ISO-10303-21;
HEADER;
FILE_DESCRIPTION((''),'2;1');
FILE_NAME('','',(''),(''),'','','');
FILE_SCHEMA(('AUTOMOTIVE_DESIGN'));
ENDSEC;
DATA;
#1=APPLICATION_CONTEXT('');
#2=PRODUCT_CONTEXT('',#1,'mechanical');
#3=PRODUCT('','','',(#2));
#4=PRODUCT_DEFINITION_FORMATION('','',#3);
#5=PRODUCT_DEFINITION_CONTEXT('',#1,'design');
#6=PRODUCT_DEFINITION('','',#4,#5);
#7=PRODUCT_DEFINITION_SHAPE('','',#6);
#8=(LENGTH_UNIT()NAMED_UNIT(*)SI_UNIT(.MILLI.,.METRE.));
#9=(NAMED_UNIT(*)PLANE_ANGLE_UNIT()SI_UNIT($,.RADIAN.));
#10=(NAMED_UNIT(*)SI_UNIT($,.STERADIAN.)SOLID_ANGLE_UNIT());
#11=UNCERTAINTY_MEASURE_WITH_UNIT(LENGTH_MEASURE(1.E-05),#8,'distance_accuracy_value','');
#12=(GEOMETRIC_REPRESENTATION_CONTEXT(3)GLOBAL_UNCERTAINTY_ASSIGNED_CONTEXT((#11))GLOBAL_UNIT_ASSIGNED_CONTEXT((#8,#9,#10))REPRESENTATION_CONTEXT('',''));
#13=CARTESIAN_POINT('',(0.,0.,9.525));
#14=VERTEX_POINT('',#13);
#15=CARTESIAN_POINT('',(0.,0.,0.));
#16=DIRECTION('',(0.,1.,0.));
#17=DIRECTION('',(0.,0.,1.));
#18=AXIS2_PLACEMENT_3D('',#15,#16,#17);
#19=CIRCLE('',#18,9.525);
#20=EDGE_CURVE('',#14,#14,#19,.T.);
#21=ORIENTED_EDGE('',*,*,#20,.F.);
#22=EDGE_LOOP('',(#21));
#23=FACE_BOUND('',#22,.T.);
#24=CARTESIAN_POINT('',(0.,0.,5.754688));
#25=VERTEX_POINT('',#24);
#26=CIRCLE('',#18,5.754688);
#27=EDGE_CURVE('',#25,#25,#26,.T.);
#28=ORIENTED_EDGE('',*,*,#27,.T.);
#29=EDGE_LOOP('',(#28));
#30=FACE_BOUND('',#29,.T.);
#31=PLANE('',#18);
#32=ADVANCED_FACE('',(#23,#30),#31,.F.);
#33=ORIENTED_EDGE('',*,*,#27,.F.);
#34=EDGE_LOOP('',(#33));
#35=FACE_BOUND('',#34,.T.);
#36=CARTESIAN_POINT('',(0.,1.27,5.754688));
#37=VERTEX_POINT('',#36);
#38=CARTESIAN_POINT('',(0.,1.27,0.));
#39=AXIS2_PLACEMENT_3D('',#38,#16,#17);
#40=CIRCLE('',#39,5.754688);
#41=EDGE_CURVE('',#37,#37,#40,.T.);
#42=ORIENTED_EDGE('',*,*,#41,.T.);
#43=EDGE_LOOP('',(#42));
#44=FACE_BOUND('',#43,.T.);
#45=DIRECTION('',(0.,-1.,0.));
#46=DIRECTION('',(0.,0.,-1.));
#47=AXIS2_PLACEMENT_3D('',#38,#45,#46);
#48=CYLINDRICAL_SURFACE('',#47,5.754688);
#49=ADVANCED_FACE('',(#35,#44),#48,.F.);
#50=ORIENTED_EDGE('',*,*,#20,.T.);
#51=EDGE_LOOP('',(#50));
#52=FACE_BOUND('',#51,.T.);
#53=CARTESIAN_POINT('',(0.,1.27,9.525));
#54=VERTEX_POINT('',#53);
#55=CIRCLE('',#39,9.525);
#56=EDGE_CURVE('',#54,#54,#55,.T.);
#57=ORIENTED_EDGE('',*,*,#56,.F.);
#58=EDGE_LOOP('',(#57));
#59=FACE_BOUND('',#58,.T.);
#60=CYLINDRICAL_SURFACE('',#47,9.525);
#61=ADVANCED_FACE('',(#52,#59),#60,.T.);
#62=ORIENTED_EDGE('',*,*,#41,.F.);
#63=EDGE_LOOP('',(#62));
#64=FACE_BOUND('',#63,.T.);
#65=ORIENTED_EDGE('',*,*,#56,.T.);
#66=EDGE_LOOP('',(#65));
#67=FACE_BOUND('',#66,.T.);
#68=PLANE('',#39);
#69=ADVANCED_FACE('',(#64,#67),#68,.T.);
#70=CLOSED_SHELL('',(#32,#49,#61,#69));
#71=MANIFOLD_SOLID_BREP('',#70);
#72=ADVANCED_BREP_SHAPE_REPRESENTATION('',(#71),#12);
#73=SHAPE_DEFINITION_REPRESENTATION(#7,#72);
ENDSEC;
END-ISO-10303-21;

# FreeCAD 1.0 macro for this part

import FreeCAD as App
import Part
import Sketcher

V = App.Vector
Q = App.Units.Quantity

doc = App.newDocument("Part")
params = doc.addObject("Spreadsheet::Sheet", "Params")
for row, (alias, value) in enumerate([
    ("sketch1_diameter", "0.75 in"),
    ("sketch1_diameter2", "0.453125 in"),
    ("pad1_length", "0.05 in"),
], start=1):
    params.set(f"A{row}", alias)
    params.set(f"B{row}", "=" + value)
    params.setAlias(f"B{row}", alias)

body = doc.addObject("PartDesign::Body", "Body")

# Sketch on XZ plane
sketch1 = body.newObject("Sketcher::SketchObject", "Sketch")
sketch1.AttachmentSupport = (doc.getObject("XZ_Plane"), [""])
sketch1.MapMode = "FlatFace"
sketch1.addGeometry(Part.Circle(V(0, 0, 0), V(0, 0, 1), 10), False)
sketch1.addGeometry(Part.Circle(V(0, 0, 0), V(0, 0, 1), 6), False)
sketch1.addConstraint(Sketcher.Constraint("Coincident", 0, 3, -1, 1))
sketch1.addConstraint(Sketcher.Constraint("Coincident", 1, 3, -1, 1))
sketch1.addConstraint(Sketcher.Constraint("Diameter", 0, Q("0.75 in")))
sketch1.addConstraint(Sketcher.Constraint("Diameter", 1, Q("0.453125 in")))
sketch1.setExpression("Constraints[2]", "Params.sketch1_diameter")
sketch1.setExpression("Constraints[3]", "Params.sketch1_diameter2")
pad1 = body.newObject("PartDesign::Pad", "Pad")
pad1.Profile = sketch1
pad1.setExpression("Length", "Params.pad1_length")
pad1.Reversed = True

doc.recompute()
